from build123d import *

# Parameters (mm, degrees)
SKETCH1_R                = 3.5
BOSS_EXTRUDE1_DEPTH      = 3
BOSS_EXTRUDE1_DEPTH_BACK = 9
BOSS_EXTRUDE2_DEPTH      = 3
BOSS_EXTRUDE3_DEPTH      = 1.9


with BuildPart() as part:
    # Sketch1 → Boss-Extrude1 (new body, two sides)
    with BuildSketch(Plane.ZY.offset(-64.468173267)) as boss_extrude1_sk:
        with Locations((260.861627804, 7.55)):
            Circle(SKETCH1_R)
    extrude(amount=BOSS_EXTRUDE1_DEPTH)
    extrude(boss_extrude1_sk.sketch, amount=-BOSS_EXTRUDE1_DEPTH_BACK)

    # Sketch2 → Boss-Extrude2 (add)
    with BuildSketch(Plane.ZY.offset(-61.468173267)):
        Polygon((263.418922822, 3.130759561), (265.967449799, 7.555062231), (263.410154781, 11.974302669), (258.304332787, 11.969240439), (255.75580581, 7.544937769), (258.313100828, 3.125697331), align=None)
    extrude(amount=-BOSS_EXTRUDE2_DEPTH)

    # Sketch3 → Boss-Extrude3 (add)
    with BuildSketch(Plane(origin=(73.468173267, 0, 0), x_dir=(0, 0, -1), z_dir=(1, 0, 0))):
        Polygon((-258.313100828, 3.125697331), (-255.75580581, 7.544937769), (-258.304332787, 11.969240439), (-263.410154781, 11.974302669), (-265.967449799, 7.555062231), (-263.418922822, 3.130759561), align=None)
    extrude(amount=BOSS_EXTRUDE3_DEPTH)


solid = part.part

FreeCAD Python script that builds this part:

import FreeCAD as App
import Part
import Sketcher
from FreeCAD import Vector

doc = App.newDocument("Part")
body = doc.addObject("PartDesign::Body", "Body")

# Sketch on YZ plane
sketch1 = body.newObject("Sketcher::SketchObject", "Sketch")
sketch1.AttachmentSupport = (doc.getObject("YZ_Plane"), [""])
sketch1.MapMode = "FlatFace"
sketch1.AttachmentOffset = App.Placement(Vector(0, 0, 64.468173), App.Rotation())
sketch1.addGeometry(Part.Circle(Vector(7.5, 260.9, 0), Vector(0, 0, 1), 3.5), False)
sketch1.addConstraint([
    Sketcher.Constraint("Diameter", 0, 7.0),
    Sketcher.Constraint("DistanceX", -1, 1, 0, 3, 7.55),
    Sketcher.Constraint("DistanceY", -1, 1, 0, 3, 260.861628),
])
pad1 = body.newObject("PartDesign::Pad", "Pad")
pad1.Profile = sketch1
pad1.Type = "TwoLengths"
pad1.Length = 3
pad1.Length2 = 9
pad1.Reversed = True

# Sketch on YZ plane
sketch2 = body.newObject("Sketcher::SketchObject", "Sketch001")
sketch2.AttachmentSupport = (doc.getObject("YZ_Plane"), [""])
sketch2.MapMode = "FlatFace"
sketch2.AttachmentOffset = App.Placement(Vector(0, 0, 61.468173), App.Rotation())
sketch2.addGeometry([
    Part.LineSegment(Vector(3, 263, 0), Vector(8, 266, 0)),  # 0
    Part.LineSegment(Vector(8, 266, 0), Vector(12, 263, 0)),  # 1
    Part.LineSegment(Vector(12, 263, 0), Vector(12, 258, 0)),  # 2
    Part.LineSegment(Vector(12, 258, 0), Vector(8, 256, 0)),  # 3
    Part.LineSegment(Vector(8, 256, 0), Vector(3, 258, 0)),  # 4
    Part.LineSegment(Vector(3, 258, 0), Vector(3, 263, 0)),  # 5
], False)
sketch2.addConstraint([
    Sketcher.Constraint("Coincident", 0, 2, 1, 1),
    Sketcher.Constraint("Coincident", 1, 2, 2, 1),
    Sketcher.Constraint("Coincident", 2, 2, 3, 1),
    Sketcher.Constraint("Coincident", 3, 2, 4, 1),
    Sketcher.Constraint("Coincident", 4, 2, 5, 1),
    Sketcher.Constraint("Coincident", 5, 2, 0, 1),
    Sketcher.Constraint("Parallel", 0, 3),
    Sketcher.Constraint("Parallel", 1, 4),
    Sketcher.Constraint("Parallel", 2, 5),
    Sketcher.Constraint("Equal", 0, 1),
    Sketcher.Constraint("Equal", 1, 2),
    Sketcher.Constraint("Equal", 2, 3),
    Sketcher.Constraint("DistanceY", -1, 1, 4, 2, 258.313101),
    Sketcher.Constraint("DistanceY", -1, 1, 0, 2, 265.96745),
    Sketcher.Constraint("DistanceX", -1, 1, 2, 2, 11.96924),
    Sketcher.Constraint("DistanceX", -1, 1, 5, 2, 3.13076),
    Sketcher.Constraint("DistanceX", 0, 2, 1, 2, 4.41924),
    Sketcher.Constraint("DistanceY", 2, 2, 1, 2, 5.105822),
])
pad2 = body.newObject("PartDesign::Pad", "Pad001")
pad2.Profile = sketch2
pad2.Length = 3

# Sketch on YZ plane
sketch3 = body.newObject("Sketcher::SketchObject", "Sketch002")
sketch3.AttachmentSupport = (doc.getObject("YZ_Plane"), [""])
sketch3.MapMode = "FlatFace"
sketch3.AttachmentOffset = App.Placement(Vector(0, 0, 73.468173), App.Rotation())
sketch3.addGeometry([
    Part.LineSegment(Vector(3, 258, 0), Vector(8, 256, 0)),  # 0
    Part.LineSegment(Vector(8, 256, 0), Vector(12, 258, 0)),  # 1
    Part.LineSegment(Vector(12, 258, 0), Vector(12, 263, 0)),  # 2
    Part.LineSegment(Vector(12, 263, 0), Vector(8, 266, 0)),  # 3
    Part.LineSegment(Vector(8, 266, 0), Vector(3, 263, 0)),  # 4
    Part.LineSegment(Vector(3, 263, 0), Vector(3, 258, 0)),  # 5
], False)
sketch3.addConstraint([
    Sketcher.Constraint("Coincident", 0, 2, 1, 1),
    Sketcher.Constraint("Coincident", 1, 2, 2, 1),
    Sketcher.Constraint("Coincident", 2, 2, 3, 1),
    Sketcher.Constraint("Coincident", 3, 2, 4, 1),
    Sketcher.Constraint("Coincident", 4, 2, 5, 1),
    Sketcher.Constraint("Coincident", 5, 2, 0, 1),
    Sketcher.Constraint("Parallel", 0, 3),
    Sketcher.Constraint("Parallel", 1, 4),
    Sketcher.Constraint("Parallel", 2, 5),
    Sketcher.Constraint("Equal", 0, 1),
    Sketcher.Constraint("Equal", 1, 2),
    Sketcher.Constraint("Equal", 2, 3),
    Sketcher.Constraint("DistanceY", -1, 1, 5, 2, 258.313101),
    Sketcher.Constraint("DistanceX", -1, 1, 1, 2, 11.96924),
    Sketcher.Constraint("DistanceY", -1, 1, 3, 2, 265.96745),
    Sketcher.Constraint("DistanceX", -1, 1, 4, 2, 3.13076),
    Sketcher.Constraint("DistanceY", 1, 2, 2, 2, 5.105822),
    Sketcher.Constraint("DistanceX", 3, 2, 2, 2, 4.41924),
])
pad3 = body.newObject("PartDesign::Pad", "Pad002")
pad3.Profile = sketch3
pad3.Length = 1.9

doc.recompute()
